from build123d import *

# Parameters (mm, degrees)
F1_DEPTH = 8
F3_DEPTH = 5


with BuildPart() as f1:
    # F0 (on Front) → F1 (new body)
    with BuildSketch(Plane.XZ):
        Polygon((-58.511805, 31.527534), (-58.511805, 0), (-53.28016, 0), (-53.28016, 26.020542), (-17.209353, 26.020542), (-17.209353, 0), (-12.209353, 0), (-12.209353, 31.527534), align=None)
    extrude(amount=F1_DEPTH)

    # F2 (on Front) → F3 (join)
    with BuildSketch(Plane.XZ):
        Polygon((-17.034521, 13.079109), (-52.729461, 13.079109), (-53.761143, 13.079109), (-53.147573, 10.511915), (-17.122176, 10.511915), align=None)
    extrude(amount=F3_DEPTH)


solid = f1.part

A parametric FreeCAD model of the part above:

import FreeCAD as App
import Part
import Sketcher

V = App.Vector
Q = App.Units.Quantity

doc = App.newDocument("Part")
params = doc.addObject("Spreadsheet::Sheet", "Params")
for row, (alias, value) in enumerate([
    ("sketch1_width", "5 mm"),
    ("pad1_length", "8 mm"),
    ("pad2_length", "5 mm"),
], start=1):
    params.set(f"A{row}", alias)
    params.set(f"B{row}", "=" + value)
    params.setAlias(f"B{row}", alias)

body = doc.addObject("PartDesign::Body", "Body")

# Sketch on XZ plane
sketch1 = body.newObject("Sketcher::SketchObject", "Sketch")
sketch1.AttachmentSupport = (doc.getObject("XZ_Plane"), [""])
sketch1.MapMode = "FlatFace"
sketch1.addGeometry([
    Part.LineSegment(V(-59, 32, 0), V(-59, 0, 0)),  # 0
    Part.LineSegment(V(-59, 0, 0), V(-53, 0, 0)),  # 1
    Part.LineSegment(V(-53, 0, 0), V(-53, 26, 0)),  # 2
    Part.LineSegment(V(-53, 26, 0), V(-17, 26, 0)),  # 3
    Part.LineSegment(V(-17, 26, 0), V(-17, 0, 0)),  # 4
    Part.LineSegment(V(-17, 0, 0), V(-12, 0, 0)),  # 5
    Part.LineSegment(V(-12, 0, 0), V(-12, 32, 0)),  # 6
    Part.LineSegment(V(-12, 32, 0), V(-59, 32, 0)),  # 7
], False)
sketch1.addConstraint([
    Sketcher.Constraint("Coincident", 0, 2, 1, 1),
    Sketcher.Constraint("Coincident", 1, 2, 2, 1),
    Sketcher.Constraint("Coincident", 2, 2, 3, 1),
    Sketcher.Constraint("Coincident", 3, 2, 4, 1),
    Sketcher.Constraint("Coincident", 4, 2, 5, 1),
    Sketcher.Constraint("Coincident", 5, 2, 6, 1),
    Sketcher.Constraint("Coincident", 6, 2, 7, 1),
    Sketcher.Constraint("Coincident", 7, 2, 0, 1),
    Sketcher.Constraint("Vertical", 0),
    Sketcher.Constraint("Horizontal", 1),
    Sketcher.Constraint("Vertical", 2),
    Sketcher.Constraint("Horizontal", 3),
    Sketcher.Constraint("Vertical", 4),
    Sketcher.Constraint("Horizontal", 5),
    Sketcher.Constraint("Vertical", 6),
    Sketcher.Constraint("Horizontal", 7),
    Sketcher.Constraint("PointOnObject", 0, 2, -1),
    Sketcher.Constraint("PointOnObject", 4, 2, -1),
    Sketcher.Constraint("DistanceX", 5, 1, 5, 2, Q("5 mm")),
    Sketcher.Constraint("DistanceY", 2, 1, 2, 2, Q("26.020542 mm")),
    Sketcher.Constraint("DistanceX", 1, 1, 1, 2, Q("5.231645 mm")),
    Sketcher.Constraint("DistanceX", 3, 1, 3, 2, Q("36.070807 mm")),
    Sketcher.Constraint("DistanceY", 0, 2, 0, 1, Q("31.527534 mm")),
    Sketcher.Constraint("DistanceX", 1, 2, -1, 1, Q("53.28016 mm")),
])
sketch1.setExpression("Constraints[18]", "Params.sketch1_width")
pad1 = body.newObject("PartDesign::Pad", "Pad")
pad1.Profile = sketch1
pad1.setExpression("Length", "Params.pad1_length")

# Sketch on XZ plane
sketch2 = body.newObject("Sketcher::SketchObject", "Sketch001")
sketch2.AttachmentSupport = (doc.getObject("XZ_Plane"), [""])
sketch2.MapMode = "FlatFace"
sketch2.addGeometry([
    Part.LineSegment(V(-17, 13.1, 0), V(-53.8, 13.1, 0)),
    Part.LineSegment(V(-53.8, 13.1, 0), V(-53.1, 10.5, 0)),
    Part.LineSegment(V(-53.1, 10.5, 0), V(-17.1, 10.5, 0)),
    Part.LineSegment(V(-17.1, 10.5, 0), V(-17, 13.1, 0)),
], False)
sketch2.addConstraint([
    Sketcher.Constraint("Coincident", 0, 2, 1, 1),
    Sketcher.Constraint("Coincident", 1, 2, 2, 1),
    Sketcher.Constraint("Coincident", 2, 2, 3, 1),
    Sketcher.Constraint("Coincident", 3, 2, 0, 1),
    Sketcher.Constraint("Horizontal", 0),
    Sketcher.Constraint("Horizontal", 2),
    Sketcher.Constraint("Distance", 1, Q("2.639499 mm")),
    Sketcher.Constraint("DistanceX", 0, 2, 0, 1, Q("36.726622 mm")),
    Sketcher.Constraint("Distance", 3, Q("2.56869 mm")),
    Sketcher.Constraint("DistanceX", 2, 1, 2, 2, Q("36.025397 mm")),
    Sketcher.Constraint("DistanceY", -1, 1, 0, 2, Q("13.079109 mm")),
    Sketcher.Constraint("DistanceX", 3, 2, -1, 1, Q("17.034521 mm")),
])
pad2 = body.newObject("PartDesign::Pad", "Pad001")
pad2.Profile = sketch2
pad2.setExpression("Length", "Params.pad2_length")

doc.recompute()
